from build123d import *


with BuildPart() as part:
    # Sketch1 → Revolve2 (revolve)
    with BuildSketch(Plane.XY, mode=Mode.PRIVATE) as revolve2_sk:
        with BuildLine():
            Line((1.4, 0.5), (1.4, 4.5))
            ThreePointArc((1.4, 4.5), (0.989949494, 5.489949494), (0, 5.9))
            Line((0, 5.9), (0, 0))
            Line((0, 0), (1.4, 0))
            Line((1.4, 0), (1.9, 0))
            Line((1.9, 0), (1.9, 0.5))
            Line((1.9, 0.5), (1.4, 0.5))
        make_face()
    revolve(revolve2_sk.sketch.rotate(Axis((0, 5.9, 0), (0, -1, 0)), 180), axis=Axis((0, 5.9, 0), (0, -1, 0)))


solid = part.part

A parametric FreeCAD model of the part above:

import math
import FreeCAD as App
import Part
import Sketcher

doc = App.newDocument("Part")
params = doc.addObject("Spreadsheet::Sheet", "Params")
for row, (alias, value) in enumerate([
    ("sketch1_radius", "1.4 mm"),
    ("sketch1_height", "4 mm"),
    ("sketch1_width", "1.9 mm"),
    ("revolution_angle", "360 deg"),
], start=1):
    params.set(f"A{row}", alias)
    params.set(f"B{row}", "=" + value)
    params.setAlias(f"B{row}", alias)

body = doc.addObject("PartDesign::Body", "Body")

sketch1 = body.newObject("Sketcher::SketchObject", "Sketch")
sketch1.AttachmentSupport = (doc.getObject("XY_Plane"), [""])
sketch1.MapMode = "FlatFace"
sketch1.addGeometry(Part.LineSegment(App.Vector(1.4, 0.5, 0), App.Vector(1.4, 4.5, 0)), False)
sketch1.addGeometry(Part.ArcOfCircle(Part.Circle(App.Vector(0, 4.5, 0), App.Vector(0, 0, 1), 1.4), math.radians(0), math.radians(90)), False)
sketch1.addGeometry(Part.LineSegment(App.Vector(0, 5.9, 0), App.Vector(0, 0, 0)), False)
sketch1.addGeometry(Part.LineSegment(App.Vector(0, 0, 0), App.Vector(1.9, 0, 0)), False)
sketch1.addGeometry(Part.LineSegment(App.Vector(1.9, 0, 0), App.Vector(1.9, 0.5, 0)), False)
sketch1.addGeometry(Part.LineSegment(App.Vector(1.9, 0.5, 0), App.Vector(1.4, 0.5, 0)), False)
sketch1.addConstraint(Sketcher.Constraint("Tangent", 0, 2, 1, 1))
sketch1.addConstraint(Sketcher.Constraint("Coincident", 1, 2, 2, 1))
sketch1.addConstraint(Sketcher.Constraint("Coincident", 2, 2, 3, 1))
sketch1.addConstraint(Sketcher.Constraint("Coincident", 3, 2, 4, 1))
sketch1.addConstraint(Sketcher.Constraint("Coincident", 4, 2, 5, 1))
sketch1.addConstraint(Sketcher.Constraint("Coincident", 5, 2, 0, 1))
sketch1.addConstraint(Sketcher.Constraint("Vertical", 0))
sketch1.addConstraint(Sketcher.Constraint("Vertical", 2))
sketch1.addConstraint(Sketcher.Constraint("Horizontal", 3))
sketch1.addConstraint(Sketcher.Constraint("Vertical", 4))
sketch1.addConstraint(Sketcher.Constraint("Horizontal", 5))
sketch1.addConstraint(Sketcher.Constraint("Coincident", 2, 2, -1, 1))
sketch1.addConstraint(Sketcher.Constraint("PointOnObject", 1, 3, -2))
sketch1.addConstraint(Sketcher.Constraint("Equal", 5, 4))
sketch1.addConstraint(Sketcher.Constraint("Radius", 1, 1.4))
sketch1.addConstraint(Sketcher.Constraint("DistanceY", 0, 1, 0, 2, 4.0))
sketch1.addConstraint(Sketcher.Constraint("DistanceX", 3, 1, 3, 2, 1.9))
sketch1.setExpression("Constraints[14]", "Params.sketch1_radius")
sketch1.setExpression("Constraints[15]", "Params.sketch1_height")
sketch1.setExpression("Constraints[16]", "Params.sketch1_width")
revolution = body.newObject("PartDesign::Revolution", "Revolution")
revolution.Profile = sketch1
revolution.ReferenceAxis = (sketch1, ["V_Axis"])
revolution.setExpression("Angle", "Params.revolution_angle")

doc.recompute()
